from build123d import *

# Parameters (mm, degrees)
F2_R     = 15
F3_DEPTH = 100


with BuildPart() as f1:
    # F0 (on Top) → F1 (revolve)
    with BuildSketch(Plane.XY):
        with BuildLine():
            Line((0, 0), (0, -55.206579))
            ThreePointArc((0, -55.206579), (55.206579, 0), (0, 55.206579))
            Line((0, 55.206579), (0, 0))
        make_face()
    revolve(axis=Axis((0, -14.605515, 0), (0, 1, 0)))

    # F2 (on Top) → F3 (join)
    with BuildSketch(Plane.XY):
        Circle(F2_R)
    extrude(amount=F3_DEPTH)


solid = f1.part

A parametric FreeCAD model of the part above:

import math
import FreeCAD as App
import Part
import Sketcher

V = App.Vector
Q = App.Units.Quantity

doc = App.newDocument("Part")
body = doc.addObject("PartDesign::Body", "Body")

sketch1 = body.newObject("Sketcher::SketchObject", "Sketch")
sketch1.AttachmentSupport = (doc.getObject("XY_Plane"), [""])
sketch1.MapMode = "FlatFace"
sketch1.addGeometry([
    Part.ArcOfCircle(Part.Circle(V(0, 0, 0), V(0, 0, 1), 55.206579), math.radians(-90), math.radians(90)),
    Part.LineSegment(V(0, 55.206579, 0), V(0, -55.206579, 0)),
], False)
sketch1.addConstraint([
    Sketcher.Constraint("Coincident", 0, 1, 1, 2),
    Sketcher.Constraint("Coincident", 1, 1, 0, 2),
    Sketcher.Constraint("Vertical", 1),
    Sketcher.Constraint("Coincident", 0, 3, -1, 1),
    Sketcher.Constraint("PointOnObject", 0, 1, -2),
    Sketcher.Constraint("Radius", 0, Q("55.206579 mm")),
])
revolution = body.newObject("PartDesign::Revolution", "Revolution")
revolution.Profile = sketch1
revolution.ReferenceAxis = (sketch1, ["V_Axis"])
revolution.Angle = 360

sketch2 = body.newObject("Sketcher::SketchObject", "Sketch001")
sketch2.AttachmentSupport = (doc.getObject("XY_Plane"), [""])
sketch2.MapMode = "FlatFace"
sketch2.addGeometry(Part.Circle(V(0, 0, 0), V(0, 0, 1), 15), False)
sketch2.addConstraint([
    Sketcher.Constraint("Coincident", 0, 3, -1, 1),
    Sketcher.Constraint("Diameter", 0, Q("30 mm")),
])
pad1 = body.newObject("PartDesign::Pad", "Pad")
pad1.Profile = sketch2
pad1.Length = 100

doc.recompute()
